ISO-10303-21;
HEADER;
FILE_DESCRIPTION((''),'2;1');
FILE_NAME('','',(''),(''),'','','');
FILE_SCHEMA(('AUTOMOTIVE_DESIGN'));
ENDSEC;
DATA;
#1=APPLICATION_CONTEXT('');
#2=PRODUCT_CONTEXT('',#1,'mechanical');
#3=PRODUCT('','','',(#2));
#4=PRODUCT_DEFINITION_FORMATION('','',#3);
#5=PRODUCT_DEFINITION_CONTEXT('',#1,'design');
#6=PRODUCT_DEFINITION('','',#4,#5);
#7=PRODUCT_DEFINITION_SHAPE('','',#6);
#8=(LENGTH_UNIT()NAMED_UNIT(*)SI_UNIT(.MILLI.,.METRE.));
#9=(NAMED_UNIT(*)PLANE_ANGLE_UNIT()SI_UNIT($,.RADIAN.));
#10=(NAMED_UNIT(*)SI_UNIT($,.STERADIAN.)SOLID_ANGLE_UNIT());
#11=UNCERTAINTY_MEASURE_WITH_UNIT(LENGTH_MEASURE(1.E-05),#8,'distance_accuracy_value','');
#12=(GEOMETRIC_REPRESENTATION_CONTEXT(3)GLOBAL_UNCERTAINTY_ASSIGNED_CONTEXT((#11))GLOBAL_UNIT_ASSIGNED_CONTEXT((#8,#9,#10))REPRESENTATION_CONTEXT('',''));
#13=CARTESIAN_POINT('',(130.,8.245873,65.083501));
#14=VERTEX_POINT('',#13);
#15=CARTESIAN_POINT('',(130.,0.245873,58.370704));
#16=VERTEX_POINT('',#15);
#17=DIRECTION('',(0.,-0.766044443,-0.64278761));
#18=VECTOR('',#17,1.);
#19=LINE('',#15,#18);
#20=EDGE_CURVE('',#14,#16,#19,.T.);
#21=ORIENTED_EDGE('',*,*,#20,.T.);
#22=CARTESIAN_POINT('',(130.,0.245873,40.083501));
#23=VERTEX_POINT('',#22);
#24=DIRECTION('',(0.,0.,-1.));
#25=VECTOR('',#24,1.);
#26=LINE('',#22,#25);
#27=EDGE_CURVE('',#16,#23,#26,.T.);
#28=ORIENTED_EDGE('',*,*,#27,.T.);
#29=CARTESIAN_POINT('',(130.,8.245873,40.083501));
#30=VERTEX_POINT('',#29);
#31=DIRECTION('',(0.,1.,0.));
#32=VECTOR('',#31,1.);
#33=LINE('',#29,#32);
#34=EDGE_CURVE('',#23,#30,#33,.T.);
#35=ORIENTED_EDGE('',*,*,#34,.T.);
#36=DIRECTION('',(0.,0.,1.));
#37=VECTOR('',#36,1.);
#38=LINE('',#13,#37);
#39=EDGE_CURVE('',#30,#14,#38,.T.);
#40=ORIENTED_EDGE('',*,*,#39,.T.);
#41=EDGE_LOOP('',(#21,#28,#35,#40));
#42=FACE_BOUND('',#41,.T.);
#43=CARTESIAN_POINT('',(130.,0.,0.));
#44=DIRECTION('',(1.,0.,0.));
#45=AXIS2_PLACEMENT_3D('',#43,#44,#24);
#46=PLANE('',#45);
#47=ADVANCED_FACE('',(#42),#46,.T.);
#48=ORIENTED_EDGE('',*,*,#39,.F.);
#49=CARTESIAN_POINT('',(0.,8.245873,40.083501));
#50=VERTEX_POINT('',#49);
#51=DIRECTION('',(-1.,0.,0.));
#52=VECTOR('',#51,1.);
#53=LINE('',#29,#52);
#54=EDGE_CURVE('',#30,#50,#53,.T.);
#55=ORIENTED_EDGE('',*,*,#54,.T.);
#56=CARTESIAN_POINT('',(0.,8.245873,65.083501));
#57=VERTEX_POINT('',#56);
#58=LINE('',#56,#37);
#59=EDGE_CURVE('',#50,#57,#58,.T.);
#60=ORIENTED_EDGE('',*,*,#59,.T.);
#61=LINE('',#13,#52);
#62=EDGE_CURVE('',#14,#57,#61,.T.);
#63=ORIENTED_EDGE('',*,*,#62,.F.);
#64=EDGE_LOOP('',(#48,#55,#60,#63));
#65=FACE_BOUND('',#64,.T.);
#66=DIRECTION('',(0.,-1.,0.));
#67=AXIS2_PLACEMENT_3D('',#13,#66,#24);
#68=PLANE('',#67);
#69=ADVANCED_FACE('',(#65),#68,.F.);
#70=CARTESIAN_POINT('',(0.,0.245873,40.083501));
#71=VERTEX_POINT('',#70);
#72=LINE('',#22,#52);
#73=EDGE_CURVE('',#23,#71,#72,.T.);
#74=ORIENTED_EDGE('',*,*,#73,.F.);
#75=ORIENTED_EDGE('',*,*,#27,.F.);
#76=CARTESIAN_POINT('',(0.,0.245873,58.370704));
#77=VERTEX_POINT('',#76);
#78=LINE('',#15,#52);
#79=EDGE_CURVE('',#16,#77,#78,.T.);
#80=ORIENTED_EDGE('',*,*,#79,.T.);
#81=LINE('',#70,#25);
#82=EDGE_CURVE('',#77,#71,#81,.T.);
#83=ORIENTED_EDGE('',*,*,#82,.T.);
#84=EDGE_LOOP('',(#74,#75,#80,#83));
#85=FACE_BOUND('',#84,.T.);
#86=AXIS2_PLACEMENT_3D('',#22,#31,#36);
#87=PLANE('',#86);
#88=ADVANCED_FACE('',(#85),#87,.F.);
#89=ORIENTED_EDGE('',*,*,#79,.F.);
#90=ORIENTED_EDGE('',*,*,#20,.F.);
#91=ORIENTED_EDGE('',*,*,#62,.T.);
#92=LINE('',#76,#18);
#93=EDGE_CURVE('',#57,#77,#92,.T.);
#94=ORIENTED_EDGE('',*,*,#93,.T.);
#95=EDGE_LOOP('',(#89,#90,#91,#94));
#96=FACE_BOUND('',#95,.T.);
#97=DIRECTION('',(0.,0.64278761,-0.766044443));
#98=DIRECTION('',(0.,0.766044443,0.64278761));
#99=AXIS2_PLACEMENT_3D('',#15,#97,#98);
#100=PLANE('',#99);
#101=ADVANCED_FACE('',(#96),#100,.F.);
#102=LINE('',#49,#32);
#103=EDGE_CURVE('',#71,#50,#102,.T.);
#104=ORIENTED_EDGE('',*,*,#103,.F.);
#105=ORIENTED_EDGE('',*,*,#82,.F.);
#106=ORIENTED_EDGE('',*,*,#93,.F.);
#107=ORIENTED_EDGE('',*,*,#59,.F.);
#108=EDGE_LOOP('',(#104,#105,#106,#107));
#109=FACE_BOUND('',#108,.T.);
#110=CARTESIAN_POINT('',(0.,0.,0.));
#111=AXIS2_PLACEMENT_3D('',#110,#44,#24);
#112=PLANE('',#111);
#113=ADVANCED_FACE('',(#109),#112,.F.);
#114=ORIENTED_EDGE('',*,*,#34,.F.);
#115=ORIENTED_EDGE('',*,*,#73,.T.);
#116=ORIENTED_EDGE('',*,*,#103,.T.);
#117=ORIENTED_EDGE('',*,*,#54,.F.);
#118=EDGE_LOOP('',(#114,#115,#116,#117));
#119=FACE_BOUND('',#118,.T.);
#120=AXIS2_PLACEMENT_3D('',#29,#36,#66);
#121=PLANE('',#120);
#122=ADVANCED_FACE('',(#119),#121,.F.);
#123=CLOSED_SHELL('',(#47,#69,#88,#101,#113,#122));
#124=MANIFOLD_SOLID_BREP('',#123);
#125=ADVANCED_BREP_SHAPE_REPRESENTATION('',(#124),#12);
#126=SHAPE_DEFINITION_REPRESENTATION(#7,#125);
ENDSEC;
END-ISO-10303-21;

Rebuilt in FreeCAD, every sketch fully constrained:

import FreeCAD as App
import Part
import Sketcher
Q = App.Units.Quantity


def add_polygon(sketch, points):
    """Adds a closed chain of lines whose ends are joined by coincident constraints."""
    first, n = sketch.GeometryCount, len(points)
    for a, b in zip(points, points[1:] + points[:1]):
        sketch.addGeometry(Part.LineSegment(App.Vector(*a, 0), App.Vector(*b, 0)), False)
    for i in range(n):
        sketch.addConstraint(Sketcher.Constraint("Coincident", first + i, 2, first + (i + 1) % n, 1))

doc = App.newDocument("Part")
body = doc.addObject("PartDesign::Body", "Body")

# Sketch on YZ plane
sketch1 = doc.addObject("Sketcher::SketchObject", "Sketch")
body.addObject(sketch1)
sketch1.AttachmentSupport = (doc.YZ_Plane, [""])
sketch1.MapMode = "FlatFace"
add_polygon(sketch1, [(8.245873, 65.083501), (0.245873, 58.370704), (0.245873, 40.083501), (8.245873, 40.083501)])  # lines 0-3
sketch1.addConstraint([
    Sketcher.Constraint("Vertical", 1),
    Sketcher.Constraint("Horizontal", 2),
    Sketcher.Constraint("Vertical", 3),
    Sketcher.Constraint("DistanceX", 2, 1, 2, 2, Q("8 mm")),
    Sketcher.Constraint("DistanceY", 3, 1, 3, 2, Q("25 mm")),
    Sketcher.Constraint("Angle", 0, Q("-140 deg")),
    Sketcher.Constraint("DistanceY", -1, 1, 1, 2, Q("40.083501 mm")),
    Sketcher.Constraint("DistanceX", -1, 1, 0, 2, Q("0.245873 mm")),
])
pad1 = doc.addObject("PartDesign::Pad", "Pad")
body.addObject(pad1)
pad1.Profile = sketch1
pad1.Length = 130

doc.recompute()
